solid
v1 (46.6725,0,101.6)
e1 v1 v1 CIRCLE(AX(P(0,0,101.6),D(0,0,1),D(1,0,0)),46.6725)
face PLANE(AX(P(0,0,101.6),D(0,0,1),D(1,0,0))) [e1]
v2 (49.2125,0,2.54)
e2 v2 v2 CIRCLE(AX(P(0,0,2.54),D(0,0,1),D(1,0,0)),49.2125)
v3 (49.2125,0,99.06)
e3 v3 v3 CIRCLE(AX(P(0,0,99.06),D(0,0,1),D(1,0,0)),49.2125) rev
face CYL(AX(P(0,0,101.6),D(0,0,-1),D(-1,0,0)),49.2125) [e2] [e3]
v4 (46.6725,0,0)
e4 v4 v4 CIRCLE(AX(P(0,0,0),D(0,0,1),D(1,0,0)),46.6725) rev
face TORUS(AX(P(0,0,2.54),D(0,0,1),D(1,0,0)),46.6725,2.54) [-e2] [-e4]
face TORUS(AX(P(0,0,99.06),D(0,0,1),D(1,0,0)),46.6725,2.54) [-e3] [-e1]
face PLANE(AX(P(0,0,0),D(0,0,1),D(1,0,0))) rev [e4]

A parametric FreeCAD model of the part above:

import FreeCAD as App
import Part
import Sketcher
Q = App.Units.Quantity


def edges_at(feature, points):
    """Names of the edges that pass closest to the given points."""
    edges = feature.Shape.Edges
    near = lambda p: min(range(len(edges)), key=lambda i: edges[i].distToShape(Part.Vertex(*p))[0])
    return sorted({f"Edge{near(p) + 1}" for p in points})

doc = App.newDocument("Part")
params = doc.addObject("Spreadsheet::Sheet", "Params")
for row, (alias, value) in enumerate([
    ("sketch1_diameter", "3.875 in"),
    ("pad1_length", "4 in"),
    ("fillet_radius", "0.1 in"),
], start=1):
    params.set(f"A{row}", alias)
    params.set(f"B{row}", "=" + value)
    params.setAlias(f"B{row}", alias)

body = doc.addObject("PartDesign::Body", "Body")

sketch1 = doc.addObject("Sketcher::SketchObject", "Sketch")
body.addObject(sketch1)
sketch1.AttachmentSupport = (doc.XY_Plane, [""])
sketch1.MapMode = "FlatFace"
sketch1.addGeometry(Part.Circle(App.Vector(0, 0, 0), App.Vector(0, 0, 1), 49.2125), False)
sketch1.addConstraint([
    Sketcher.Constraint("Coincident", 0, 3, -1, 1),
    Sketcher.Constraint("Diameter", 0, Q("3.875 in")),
])
sketch1.setExpression("Constraints[1]", "Params.sketch1_diameter")
pad1 = doc.addObject("PartDesign::Pad", "Pad")
body.addObject(pad1)
pad1.Profile = sketch1
pad1.setExpression("Length", "Params.pad1_length")
doc.recompute()

fillet = doc.addObject("PartDesign::Fillet", "Fillet")
body.addObject(fillet)
fillet.Base = (pad1, edges_at(pad1, [(-49.212, 0, 0), (-49.212, 0, 101.6)]))
fillet.setExpression("Radius", "Params.fillet_radius")

doc.recompute()
